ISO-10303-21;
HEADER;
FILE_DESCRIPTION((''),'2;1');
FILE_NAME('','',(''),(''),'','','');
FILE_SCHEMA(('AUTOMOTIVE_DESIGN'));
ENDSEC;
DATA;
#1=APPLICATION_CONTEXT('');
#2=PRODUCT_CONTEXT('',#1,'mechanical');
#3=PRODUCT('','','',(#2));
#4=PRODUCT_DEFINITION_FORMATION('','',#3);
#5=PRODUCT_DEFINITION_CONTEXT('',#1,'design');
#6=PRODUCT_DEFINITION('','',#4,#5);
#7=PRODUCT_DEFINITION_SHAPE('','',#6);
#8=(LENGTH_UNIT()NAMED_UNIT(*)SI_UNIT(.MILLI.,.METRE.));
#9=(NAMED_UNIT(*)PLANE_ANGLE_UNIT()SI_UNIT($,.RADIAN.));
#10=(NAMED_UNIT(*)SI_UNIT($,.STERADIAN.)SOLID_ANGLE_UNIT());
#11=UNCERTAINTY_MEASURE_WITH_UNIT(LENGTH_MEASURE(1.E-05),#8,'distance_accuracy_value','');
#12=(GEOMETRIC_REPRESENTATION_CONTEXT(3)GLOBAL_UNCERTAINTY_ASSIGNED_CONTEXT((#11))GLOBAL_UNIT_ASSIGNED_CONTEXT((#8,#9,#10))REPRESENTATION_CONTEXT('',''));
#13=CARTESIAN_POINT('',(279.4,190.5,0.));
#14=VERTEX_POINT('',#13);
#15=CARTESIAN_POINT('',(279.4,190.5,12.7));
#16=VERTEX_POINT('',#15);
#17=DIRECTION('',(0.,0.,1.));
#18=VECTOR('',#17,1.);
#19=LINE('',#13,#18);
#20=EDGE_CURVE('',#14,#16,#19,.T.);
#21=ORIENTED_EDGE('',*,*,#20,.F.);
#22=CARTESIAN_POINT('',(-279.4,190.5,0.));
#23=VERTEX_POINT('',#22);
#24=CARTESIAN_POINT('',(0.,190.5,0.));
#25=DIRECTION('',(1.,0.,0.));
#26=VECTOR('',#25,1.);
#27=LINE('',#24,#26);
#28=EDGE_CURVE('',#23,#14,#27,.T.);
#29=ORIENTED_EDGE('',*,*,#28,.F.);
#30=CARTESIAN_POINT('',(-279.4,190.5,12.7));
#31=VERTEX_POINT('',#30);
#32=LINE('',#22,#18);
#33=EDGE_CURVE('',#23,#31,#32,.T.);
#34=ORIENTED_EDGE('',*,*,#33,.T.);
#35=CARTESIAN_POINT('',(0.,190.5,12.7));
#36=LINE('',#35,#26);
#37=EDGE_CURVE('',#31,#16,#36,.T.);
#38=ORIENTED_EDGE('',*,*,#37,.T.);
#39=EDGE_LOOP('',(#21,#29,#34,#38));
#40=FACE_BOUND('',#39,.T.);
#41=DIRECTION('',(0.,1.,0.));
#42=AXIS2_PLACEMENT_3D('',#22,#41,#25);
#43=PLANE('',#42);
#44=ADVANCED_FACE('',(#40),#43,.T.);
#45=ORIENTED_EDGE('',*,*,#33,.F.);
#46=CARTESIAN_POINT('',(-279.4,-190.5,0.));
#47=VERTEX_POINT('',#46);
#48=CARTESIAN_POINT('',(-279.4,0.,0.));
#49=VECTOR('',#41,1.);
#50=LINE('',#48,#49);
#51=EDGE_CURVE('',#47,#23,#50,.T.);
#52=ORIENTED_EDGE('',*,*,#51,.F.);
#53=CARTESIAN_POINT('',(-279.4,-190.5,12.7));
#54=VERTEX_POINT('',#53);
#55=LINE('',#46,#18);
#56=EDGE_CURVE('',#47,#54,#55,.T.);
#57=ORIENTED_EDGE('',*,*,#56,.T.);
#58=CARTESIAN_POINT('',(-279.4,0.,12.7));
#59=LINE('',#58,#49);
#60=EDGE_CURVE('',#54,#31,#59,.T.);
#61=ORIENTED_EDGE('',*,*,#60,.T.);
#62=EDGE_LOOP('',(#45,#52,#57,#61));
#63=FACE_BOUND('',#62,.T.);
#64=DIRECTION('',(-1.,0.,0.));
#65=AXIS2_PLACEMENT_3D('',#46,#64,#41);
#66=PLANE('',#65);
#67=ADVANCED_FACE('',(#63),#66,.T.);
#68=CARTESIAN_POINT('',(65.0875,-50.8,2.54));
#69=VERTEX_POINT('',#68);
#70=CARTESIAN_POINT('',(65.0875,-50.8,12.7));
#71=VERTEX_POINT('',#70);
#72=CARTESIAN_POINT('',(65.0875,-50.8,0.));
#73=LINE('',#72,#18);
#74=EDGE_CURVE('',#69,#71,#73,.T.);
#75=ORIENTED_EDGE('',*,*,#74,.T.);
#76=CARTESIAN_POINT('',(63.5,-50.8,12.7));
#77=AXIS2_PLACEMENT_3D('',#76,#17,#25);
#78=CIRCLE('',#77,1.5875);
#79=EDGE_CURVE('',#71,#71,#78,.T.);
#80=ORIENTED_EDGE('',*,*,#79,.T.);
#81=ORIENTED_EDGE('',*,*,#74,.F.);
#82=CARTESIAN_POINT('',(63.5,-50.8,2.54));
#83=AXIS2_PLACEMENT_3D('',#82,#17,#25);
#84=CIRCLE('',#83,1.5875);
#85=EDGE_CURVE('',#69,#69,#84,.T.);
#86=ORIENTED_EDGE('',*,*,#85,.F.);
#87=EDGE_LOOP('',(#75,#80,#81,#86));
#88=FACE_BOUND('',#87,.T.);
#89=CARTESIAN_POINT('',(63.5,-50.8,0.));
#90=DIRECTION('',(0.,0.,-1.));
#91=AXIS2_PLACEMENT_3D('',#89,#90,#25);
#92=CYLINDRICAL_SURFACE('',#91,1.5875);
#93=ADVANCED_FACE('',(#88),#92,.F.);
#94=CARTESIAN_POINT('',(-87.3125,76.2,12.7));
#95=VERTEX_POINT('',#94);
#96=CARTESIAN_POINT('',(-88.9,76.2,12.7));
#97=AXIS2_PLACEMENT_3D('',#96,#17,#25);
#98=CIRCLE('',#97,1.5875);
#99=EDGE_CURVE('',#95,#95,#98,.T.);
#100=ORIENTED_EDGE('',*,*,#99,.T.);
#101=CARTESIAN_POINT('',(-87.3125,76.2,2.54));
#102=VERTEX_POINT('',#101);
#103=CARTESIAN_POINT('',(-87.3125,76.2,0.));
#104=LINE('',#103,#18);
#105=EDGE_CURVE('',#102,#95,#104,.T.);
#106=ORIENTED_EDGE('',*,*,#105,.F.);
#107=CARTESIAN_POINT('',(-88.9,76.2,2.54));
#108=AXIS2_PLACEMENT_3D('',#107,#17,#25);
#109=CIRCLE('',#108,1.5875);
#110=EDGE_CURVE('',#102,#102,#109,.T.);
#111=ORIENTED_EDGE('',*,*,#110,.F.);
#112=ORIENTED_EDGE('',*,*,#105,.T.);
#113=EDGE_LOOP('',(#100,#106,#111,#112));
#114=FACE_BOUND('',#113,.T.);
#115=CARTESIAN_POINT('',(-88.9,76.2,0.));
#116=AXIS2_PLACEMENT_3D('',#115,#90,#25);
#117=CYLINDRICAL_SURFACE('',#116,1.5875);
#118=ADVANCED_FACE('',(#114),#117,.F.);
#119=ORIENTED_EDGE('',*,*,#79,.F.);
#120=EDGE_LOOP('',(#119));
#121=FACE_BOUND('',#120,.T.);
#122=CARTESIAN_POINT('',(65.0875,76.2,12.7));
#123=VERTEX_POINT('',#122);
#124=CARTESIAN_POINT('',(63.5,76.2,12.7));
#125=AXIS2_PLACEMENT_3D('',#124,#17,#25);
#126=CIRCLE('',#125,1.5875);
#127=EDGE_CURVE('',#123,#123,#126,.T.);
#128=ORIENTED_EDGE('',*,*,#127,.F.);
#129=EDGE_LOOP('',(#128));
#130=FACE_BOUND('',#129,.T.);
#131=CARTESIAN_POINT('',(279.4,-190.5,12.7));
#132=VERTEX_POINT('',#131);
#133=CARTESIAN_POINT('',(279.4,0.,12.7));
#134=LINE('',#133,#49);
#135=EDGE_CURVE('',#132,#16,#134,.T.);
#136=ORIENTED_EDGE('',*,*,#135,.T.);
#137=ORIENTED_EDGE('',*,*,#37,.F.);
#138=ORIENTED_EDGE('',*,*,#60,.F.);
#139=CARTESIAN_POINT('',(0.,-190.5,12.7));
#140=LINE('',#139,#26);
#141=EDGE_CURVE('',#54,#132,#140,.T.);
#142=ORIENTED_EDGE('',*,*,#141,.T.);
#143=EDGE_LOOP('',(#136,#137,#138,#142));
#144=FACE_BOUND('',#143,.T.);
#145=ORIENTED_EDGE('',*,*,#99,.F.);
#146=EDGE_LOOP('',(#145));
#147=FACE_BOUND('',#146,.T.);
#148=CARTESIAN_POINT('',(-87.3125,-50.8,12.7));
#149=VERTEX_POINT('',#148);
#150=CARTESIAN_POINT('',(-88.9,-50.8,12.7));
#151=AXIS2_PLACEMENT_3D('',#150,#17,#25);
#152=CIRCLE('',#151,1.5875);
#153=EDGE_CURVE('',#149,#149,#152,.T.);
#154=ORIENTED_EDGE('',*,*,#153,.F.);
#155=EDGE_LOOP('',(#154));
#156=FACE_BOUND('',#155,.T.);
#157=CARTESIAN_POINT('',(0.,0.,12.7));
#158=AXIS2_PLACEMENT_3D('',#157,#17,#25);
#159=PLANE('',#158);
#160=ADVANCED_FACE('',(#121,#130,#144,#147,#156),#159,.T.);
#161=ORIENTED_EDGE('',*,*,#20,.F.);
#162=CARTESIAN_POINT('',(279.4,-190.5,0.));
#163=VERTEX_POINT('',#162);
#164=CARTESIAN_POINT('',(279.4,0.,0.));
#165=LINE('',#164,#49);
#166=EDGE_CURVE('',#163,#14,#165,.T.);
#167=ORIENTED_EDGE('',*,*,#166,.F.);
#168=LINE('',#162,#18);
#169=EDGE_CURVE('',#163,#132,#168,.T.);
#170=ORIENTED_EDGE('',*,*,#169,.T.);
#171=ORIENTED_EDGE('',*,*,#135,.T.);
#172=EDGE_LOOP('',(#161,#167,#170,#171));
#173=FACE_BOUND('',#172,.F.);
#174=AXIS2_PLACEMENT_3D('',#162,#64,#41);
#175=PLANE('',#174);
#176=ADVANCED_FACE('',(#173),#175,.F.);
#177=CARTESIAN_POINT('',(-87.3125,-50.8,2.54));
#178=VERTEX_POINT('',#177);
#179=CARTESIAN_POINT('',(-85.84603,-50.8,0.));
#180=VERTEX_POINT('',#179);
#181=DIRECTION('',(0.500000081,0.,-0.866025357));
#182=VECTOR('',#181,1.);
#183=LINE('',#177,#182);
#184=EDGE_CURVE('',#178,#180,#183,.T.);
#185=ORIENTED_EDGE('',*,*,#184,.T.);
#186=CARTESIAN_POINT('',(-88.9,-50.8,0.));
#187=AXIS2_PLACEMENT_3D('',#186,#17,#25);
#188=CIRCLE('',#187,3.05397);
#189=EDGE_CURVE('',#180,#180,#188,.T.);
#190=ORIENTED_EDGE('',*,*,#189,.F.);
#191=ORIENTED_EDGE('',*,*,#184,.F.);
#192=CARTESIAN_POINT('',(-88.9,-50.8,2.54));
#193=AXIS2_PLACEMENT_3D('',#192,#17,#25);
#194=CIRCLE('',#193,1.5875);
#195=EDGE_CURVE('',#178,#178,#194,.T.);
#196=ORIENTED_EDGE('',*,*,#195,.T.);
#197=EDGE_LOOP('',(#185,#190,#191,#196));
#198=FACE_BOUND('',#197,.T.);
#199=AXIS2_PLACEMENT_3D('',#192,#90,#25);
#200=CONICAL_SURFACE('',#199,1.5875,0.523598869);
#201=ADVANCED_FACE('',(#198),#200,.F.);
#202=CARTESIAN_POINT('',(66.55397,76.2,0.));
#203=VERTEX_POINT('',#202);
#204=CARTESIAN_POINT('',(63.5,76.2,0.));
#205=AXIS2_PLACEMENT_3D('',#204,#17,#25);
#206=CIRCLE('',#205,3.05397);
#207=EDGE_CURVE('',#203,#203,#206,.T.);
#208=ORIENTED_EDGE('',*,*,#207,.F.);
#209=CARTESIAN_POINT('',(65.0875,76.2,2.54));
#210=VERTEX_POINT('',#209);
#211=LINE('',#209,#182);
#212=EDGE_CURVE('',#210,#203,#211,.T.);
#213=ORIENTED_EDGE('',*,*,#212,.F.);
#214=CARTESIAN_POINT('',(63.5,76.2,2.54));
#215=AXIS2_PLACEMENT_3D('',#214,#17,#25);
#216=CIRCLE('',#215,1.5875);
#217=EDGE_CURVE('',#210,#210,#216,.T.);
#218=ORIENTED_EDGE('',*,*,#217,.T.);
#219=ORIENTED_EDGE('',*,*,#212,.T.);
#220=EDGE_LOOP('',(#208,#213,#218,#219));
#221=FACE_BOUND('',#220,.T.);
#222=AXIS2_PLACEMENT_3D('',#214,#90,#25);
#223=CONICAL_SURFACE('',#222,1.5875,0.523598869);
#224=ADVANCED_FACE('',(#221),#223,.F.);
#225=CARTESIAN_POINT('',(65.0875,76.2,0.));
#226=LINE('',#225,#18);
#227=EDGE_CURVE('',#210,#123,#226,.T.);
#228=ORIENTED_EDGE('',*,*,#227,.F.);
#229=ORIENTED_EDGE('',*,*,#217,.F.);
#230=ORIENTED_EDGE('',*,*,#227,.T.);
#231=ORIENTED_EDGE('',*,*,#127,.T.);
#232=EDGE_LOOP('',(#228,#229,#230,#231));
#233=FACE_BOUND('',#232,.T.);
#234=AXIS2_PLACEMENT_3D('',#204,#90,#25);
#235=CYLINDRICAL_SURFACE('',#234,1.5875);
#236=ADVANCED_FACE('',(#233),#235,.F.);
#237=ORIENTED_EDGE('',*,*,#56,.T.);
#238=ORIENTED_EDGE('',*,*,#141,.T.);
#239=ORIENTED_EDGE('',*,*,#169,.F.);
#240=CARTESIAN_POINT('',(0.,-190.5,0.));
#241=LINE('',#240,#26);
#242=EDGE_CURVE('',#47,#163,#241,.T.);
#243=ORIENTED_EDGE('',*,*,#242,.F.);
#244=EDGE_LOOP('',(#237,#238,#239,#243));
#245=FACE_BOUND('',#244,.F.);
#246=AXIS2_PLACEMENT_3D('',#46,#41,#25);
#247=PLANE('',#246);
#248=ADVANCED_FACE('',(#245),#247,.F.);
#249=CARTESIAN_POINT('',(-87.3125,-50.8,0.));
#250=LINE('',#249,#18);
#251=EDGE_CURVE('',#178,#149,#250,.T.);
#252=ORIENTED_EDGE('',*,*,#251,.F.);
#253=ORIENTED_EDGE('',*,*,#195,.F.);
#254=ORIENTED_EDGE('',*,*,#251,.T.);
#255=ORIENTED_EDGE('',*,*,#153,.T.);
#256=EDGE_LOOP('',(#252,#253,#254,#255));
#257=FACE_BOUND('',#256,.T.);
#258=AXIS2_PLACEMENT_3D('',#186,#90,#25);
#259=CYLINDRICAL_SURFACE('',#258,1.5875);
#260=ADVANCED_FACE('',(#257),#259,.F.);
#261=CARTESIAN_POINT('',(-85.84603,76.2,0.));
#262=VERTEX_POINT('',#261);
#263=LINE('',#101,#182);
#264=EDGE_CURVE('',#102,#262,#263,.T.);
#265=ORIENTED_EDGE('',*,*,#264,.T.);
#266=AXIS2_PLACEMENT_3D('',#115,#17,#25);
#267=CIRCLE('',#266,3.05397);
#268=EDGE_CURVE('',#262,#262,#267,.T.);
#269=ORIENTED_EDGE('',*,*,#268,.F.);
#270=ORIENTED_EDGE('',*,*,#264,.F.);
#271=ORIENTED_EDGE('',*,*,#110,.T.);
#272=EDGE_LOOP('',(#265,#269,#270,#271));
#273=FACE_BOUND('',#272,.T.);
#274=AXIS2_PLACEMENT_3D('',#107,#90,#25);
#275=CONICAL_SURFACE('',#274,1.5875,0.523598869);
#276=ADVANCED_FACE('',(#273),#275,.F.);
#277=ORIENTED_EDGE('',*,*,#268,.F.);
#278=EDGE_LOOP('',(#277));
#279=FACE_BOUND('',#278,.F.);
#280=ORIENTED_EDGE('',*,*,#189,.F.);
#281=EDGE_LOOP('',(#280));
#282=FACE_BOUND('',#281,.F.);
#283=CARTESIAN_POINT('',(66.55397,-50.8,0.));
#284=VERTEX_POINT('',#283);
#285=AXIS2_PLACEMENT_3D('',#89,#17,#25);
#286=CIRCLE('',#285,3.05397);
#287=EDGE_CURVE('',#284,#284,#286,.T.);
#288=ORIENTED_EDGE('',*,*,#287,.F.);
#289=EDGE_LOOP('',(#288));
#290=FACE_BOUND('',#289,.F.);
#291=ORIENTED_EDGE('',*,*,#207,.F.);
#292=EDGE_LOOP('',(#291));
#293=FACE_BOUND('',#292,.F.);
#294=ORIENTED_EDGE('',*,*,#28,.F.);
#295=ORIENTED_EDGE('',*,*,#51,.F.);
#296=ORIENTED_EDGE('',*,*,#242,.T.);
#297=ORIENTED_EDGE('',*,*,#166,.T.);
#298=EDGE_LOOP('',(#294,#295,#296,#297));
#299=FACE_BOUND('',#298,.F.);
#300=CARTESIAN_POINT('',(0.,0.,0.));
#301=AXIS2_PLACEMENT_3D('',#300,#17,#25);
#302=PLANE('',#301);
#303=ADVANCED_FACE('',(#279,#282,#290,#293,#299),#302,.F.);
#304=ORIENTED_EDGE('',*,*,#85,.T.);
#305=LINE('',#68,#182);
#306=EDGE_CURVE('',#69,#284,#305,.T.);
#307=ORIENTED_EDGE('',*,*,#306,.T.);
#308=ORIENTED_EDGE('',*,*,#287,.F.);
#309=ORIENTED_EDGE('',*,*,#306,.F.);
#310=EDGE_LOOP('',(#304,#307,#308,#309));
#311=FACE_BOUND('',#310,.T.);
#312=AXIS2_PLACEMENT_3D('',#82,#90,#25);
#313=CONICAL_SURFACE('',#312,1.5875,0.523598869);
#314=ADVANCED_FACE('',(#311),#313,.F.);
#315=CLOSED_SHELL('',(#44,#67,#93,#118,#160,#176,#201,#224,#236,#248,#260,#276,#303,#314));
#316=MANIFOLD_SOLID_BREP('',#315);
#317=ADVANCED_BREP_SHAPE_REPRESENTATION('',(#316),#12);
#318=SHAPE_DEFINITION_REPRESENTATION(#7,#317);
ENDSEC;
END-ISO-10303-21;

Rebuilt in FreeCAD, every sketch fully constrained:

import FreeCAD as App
import Part
import Sketcher
Q = App.Units.Quantity


def edges_at(feature, points):
    """Names of the edges that pass closest to the given points."""
    edges = feature.Shape.Edges
    near = lambda p: min(range(len(edges)), key=lambda i: edges[i].distToShape(Part.Vertex(*p))[0])
    return sorted({f"Edge{near(p) + 1}" for p in points})


def add_polygon(sketch, points):
    """Adds a closed chain of lines whose ends are joined by coincident constraints."""
    first, n = sketch.GeometryCount, len(points)
    for a, b in zip(points, points[1:] + points[:1]):
        sketch.addGeometry(Part.LineSegment(App.Vector(*a, 0), App.Vector(*b, 0)), False)
    for i in range(n):
        sketch.addConstraint(Sketcher.Constraint("Coincident", first + i, 2, first + (i + 1) % n, 1))

doc = App.newDocument("Part")
body = doc.addObject("PartDesign::Body", "Body")

# Sketch on XY plane
sketch1 = body.newObject("Sketcher::SketchObject", "Sketch")
sketch1.AttachmentSupport = (doc.getObject("XY_Plane"), [""])
sketch1.MapMode = "FlatFace"
add_polygon(sketch1, [(-279.4, 190.5), (-279.4, -190.5), (279.4, -190.5), (279.4, 190.5)])  # lines 0-3
sketch1.addGeometry(Part.Circle(App.Vector(-88.9, -50.8, 0), App.Vector(0, 0, 1), 1.6), False)  # 4
sketch1.addGeometry(Part.Circle(App.Vector(63.5, -50.8, 0), App.Vector(0, 0, 1), 1.6), False)  # 5
sketch1.addGeometry(Part.Circle(App.Vector(-88.9, 76.2, 0), App.Vector(0, 0, 1), 1.6), False)  # 6
sketch1.addGeometry(Part.Circle(App.Vector(63.5, 76.2, 0), App.Vector(0, 0, 1), 1.6), False)  # 7
sketch1.addConstraint([
    Sketcher.Constraint("Vertical", 0),
    Sketcher.Constraint("Horizontal", 1),
    Sketcher.Constraint("Vertical", 2),
    Sketcher.Constraint("Horizontal", 3),
    Sketcher.Constraint("Equal", 4, 5),
    Sketcher.Constraint("Equal", 5, 6),
    Sketcher.Constraint("Equal", 6, 7),
    Sketcher.Constraint("Symmetric", 0, 2, 2, 2, -1, 1),
    Sketcher.Constraint("Horizontal", 4, 3, 5, 3),
    Sketcher.Constraint("Horizontal", 6, 3, 7, 3),
    Sketcher.Constraint("Vertical", 4, 3, 6, 3),
    Sketcher.Constraint("Vertical", 5, 3, 7, 3),
    Sketcher.Constraint("DistanceX", 1, 1, 1, 2, Q("22 in")),
    Sketcher.Constraint("DistanceY", 0, 2, 0, 1, Q("15 in")),
    Sketcher.Constraint("Diameter", 4, Q("0.125 in")),
    Sketcher.Constraint("DistanceY", 4, 3, -1, 1, Q("2 in")),
    Sketcher.Constraint("DistanceY", -1, 1, 6, 3, Q("3 in")),
    Sketcher.Constraint("DistanceX", 4, 3, 5, 3, Q("6 in")),
    Sketcher.Constraint("DistanceX", 4, 3, -1, 1, Q("3.5 in")),
])
pad1 = body.newObject("PartDesign::Pad", "Pad")
pad1.Profile = sketch1
pad1.Length = Q("0.5 in")
doc.recompute()

chamfer = body.newObject("PartDesign::Chamfer", "Chamfer")
chamfer.Base = (pad1, edges_at(pad1, [
    (-90.487, -50.8, 0),
    (61.913, -50.8, 0),
    (-90.487, 76.2, 0),
    (61.913, 76.2, 0),
]))
chamfer.ChamferType = "Two distances"
chamfer.Size = Q("0.1 in")
chamfer.Size2 = 1.46647

doc.recompute()
